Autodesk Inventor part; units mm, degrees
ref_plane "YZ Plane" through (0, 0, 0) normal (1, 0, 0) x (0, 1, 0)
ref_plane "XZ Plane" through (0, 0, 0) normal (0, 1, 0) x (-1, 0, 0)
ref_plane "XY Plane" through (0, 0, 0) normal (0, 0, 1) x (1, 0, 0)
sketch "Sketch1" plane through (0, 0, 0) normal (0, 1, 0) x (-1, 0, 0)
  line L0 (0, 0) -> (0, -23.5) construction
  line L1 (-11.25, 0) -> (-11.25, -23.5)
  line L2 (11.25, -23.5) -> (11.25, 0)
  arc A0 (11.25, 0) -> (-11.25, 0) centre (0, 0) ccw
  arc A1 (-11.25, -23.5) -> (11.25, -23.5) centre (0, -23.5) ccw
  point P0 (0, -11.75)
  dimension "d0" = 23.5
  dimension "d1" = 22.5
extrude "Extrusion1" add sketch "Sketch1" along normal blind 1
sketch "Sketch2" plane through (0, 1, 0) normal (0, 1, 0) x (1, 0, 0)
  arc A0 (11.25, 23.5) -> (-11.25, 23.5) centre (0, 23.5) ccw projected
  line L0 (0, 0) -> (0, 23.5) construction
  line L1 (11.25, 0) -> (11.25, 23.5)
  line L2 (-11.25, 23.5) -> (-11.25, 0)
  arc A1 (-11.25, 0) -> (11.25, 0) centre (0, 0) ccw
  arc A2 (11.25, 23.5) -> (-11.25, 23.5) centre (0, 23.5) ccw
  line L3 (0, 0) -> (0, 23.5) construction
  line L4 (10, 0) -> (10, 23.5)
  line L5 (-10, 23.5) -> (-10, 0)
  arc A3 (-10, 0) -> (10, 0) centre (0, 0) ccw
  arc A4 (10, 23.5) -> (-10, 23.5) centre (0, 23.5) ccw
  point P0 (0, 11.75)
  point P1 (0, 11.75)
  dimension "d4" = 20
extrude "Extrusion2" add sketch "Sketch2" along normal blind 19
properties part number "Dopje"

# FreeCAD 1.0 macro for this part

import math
import FreeCAD as App
import Part
import Sketcher
from FreeCAD import Vector
Q = App.Units.Quantity

doc = App.newDocument("Part")
body = doc.addObject("PartDesign::Body", "Body")

# Sketch on XZ plane
sketch1 = body.newObject("Sketcher::SketchObject", "Sketch")
sketch1.AttachmentSupport = (doc.getObject("XZ_Plane"), [""])
sketch1.MapMode = "FlatFace"
sketch1.addGeometry(Part.ArcOfCircle(Part.Circle(Vector(0, 0, 0), Vector(0, 0, 1), 11), math.radians(0), math.radians(180)), False)
sketch1.addGeometry(Part.LineSegment(Vector(11, 0, 0), Vector(11, -24, 0)), False)
sketch1.addGeometry(Part.ArcOfCircle(Part.Circle(Vector(0, -24, 0), Vector(0, 0, 1), 11), math.radians(180), math.radians(360)), False)
sketch1.addGeometry(Part.LineSegment(Vector(-11, -24, 0), Vector(-11, 0, 0)), False)
sketch1.addConstraint(Sketcher.Constraint("Tangent", 0, 1, 1, 1))
sketch1.addConstraint(Sketcher.Constraint("Tangent", 1, 2, 2, 2))
sketch1.addConstraint(Sketcher.Constraint("Tangent", 2, 1, 3, 1))
sketch1.addConstraint(Sketcher.Constraint("Tangent", 3, 2, 0, 2))
sketch1.addConstraint(Sketcher.Constraint("Vertical", 1))
sketch1.addConstraint(Sketcher.Constraint("Vertical", 3))
sketch1.addConstraint(Sketcher.Constraint("Coincident", 0, 3, -1, 1))
sketch1.addConstraint(Sketcher.Constraint("Radius", 0, Q("11.25 mm")))
sketch1.addConstraint(Sketcher.Constraint("DistanceY", 1, 2, 1, 1, Q("23.5 mm")))
pad1 = body.newObject("PartDesign::Pad", "Pad")
pad1.Profile = sketch1
pad1.Length = 1
pad1.Reversed = True

# Sketch on XZ plane
sketch2 = body.newObject("Sketcher::SketchObject", "Sketch001")
sketch2.AttachmentSupport = (doc.getObject("XZ_Plane"), [""])
sketch2.MapMode = "FlatFace"
sketch2.AttachmentOffset = App.Placement(Vector(0, 0, -1), App.Rotation())
sketch2.addGeometry(Part.LineSegment(Vector(11, 0, 0), Vector(11, -24, 0)), False)
sketch2.addGeometry(Part.ArcOfCircle(Part.Circle(Vector(0, -24, 0), Vector(0, 0, 1), 11), math.radians(180), math.radians(360)), False)
sketch2.addGeometry(Part.LineSegment(Vector(-11, -24, 0), Vector(-11, 0, 0)), False)
sketch2.addGeometry(Part.ArcOfCircle(Part.Circle(Vector(0, 0, 0), Vector(0, 0, 1), 11), math.radians(0), math.radians(180)), False)
sketch2.addGeometry(Part.LineSegment(Vector(10, -24, 0), Vector(10, 0, 0)), False)
sketch2.addGeometry(Part.ArcOfCircle(Part.Circle(Vector(0, 0, 0), Vector(0, 0, 1), 10), math.radians(0), math.radians(180)), False)
sketch2.addGeometry(Part.LineSegment(Vector(-10, 0, 0), Vector(-10, -24, 0)), False)
sketch2.addGeometry(Part.ArcOfCircle(Part.Circle(Vector(0, -24, 0), Vector(0, 0, 1), 10), math.radians(180), math.radians(360)), False)
sketch2.addConstraint(Sketcher.Constraint("Tangent", 0, 2, 1, 2))
sketch2.addConstraint(Sketcher.Constraint("Tangent", 1, 1, 2, 1))
sketch2.addConstraint(Sketcher.Constraint("Tangent", 2, 2, 3, 2))
sketch2.addConstraint(Sketcher.Constraint("Tangent", 3, 1, 0, 1))
sketch2.addConstraint(Sketcher.Constraint("Tangent", 4, 2, 5, 1))
sketch2.addConstraint(Sketcher.Constraint("Tangent", 5, 2, 6, 1))
sketch2.addConstraint(Sketcher.Constraint("Tangent", 6, 2, 7, 1))
sketch2.addConstraint(Sketcher.Constraint("Tangent", 7, 2, 4, 1))
sketch2.addConstraint(Sketcher.Constraint("Vertical", 0))
sketch2.addConstraint(Sketcher.Constraint("Vertical", 2))
sketch2.addConstraint(Sketcher.Constraint("Vertical", 4))
sketch2.addConstraint(Sketcher.Constraint("Vertical", 6))
sketch2.addConstraint(Sketcher.Constraint("Coincident", 3, 3, -1, 1))
sketch2.addConstraint(Sketcher.Constraint("Coincident", 5, 3, -1, 1))
sketch2.addConstraint(Sketcher.Constraint("Horizontal", 7, 3, 0, 2))
sketch2.addConstraint(Sketcher.Constraint("Radius", 5, Q("10 mm")))
sketch2.addConstraint(Sketcher.Constraint("Radius", 1, Q("11.25 mm")))
sketch2.addConstraint(Sketcher.Constraint("DistanceY", 0, 2, 0, 1, Q("23.5 mm")))
pad2 = body.newObject("PartDesign::Pad", "Pad001")
pad2.Profile = sketch2
pad2.Length = 19
pad2.Reversed = True

doc.recompute()
